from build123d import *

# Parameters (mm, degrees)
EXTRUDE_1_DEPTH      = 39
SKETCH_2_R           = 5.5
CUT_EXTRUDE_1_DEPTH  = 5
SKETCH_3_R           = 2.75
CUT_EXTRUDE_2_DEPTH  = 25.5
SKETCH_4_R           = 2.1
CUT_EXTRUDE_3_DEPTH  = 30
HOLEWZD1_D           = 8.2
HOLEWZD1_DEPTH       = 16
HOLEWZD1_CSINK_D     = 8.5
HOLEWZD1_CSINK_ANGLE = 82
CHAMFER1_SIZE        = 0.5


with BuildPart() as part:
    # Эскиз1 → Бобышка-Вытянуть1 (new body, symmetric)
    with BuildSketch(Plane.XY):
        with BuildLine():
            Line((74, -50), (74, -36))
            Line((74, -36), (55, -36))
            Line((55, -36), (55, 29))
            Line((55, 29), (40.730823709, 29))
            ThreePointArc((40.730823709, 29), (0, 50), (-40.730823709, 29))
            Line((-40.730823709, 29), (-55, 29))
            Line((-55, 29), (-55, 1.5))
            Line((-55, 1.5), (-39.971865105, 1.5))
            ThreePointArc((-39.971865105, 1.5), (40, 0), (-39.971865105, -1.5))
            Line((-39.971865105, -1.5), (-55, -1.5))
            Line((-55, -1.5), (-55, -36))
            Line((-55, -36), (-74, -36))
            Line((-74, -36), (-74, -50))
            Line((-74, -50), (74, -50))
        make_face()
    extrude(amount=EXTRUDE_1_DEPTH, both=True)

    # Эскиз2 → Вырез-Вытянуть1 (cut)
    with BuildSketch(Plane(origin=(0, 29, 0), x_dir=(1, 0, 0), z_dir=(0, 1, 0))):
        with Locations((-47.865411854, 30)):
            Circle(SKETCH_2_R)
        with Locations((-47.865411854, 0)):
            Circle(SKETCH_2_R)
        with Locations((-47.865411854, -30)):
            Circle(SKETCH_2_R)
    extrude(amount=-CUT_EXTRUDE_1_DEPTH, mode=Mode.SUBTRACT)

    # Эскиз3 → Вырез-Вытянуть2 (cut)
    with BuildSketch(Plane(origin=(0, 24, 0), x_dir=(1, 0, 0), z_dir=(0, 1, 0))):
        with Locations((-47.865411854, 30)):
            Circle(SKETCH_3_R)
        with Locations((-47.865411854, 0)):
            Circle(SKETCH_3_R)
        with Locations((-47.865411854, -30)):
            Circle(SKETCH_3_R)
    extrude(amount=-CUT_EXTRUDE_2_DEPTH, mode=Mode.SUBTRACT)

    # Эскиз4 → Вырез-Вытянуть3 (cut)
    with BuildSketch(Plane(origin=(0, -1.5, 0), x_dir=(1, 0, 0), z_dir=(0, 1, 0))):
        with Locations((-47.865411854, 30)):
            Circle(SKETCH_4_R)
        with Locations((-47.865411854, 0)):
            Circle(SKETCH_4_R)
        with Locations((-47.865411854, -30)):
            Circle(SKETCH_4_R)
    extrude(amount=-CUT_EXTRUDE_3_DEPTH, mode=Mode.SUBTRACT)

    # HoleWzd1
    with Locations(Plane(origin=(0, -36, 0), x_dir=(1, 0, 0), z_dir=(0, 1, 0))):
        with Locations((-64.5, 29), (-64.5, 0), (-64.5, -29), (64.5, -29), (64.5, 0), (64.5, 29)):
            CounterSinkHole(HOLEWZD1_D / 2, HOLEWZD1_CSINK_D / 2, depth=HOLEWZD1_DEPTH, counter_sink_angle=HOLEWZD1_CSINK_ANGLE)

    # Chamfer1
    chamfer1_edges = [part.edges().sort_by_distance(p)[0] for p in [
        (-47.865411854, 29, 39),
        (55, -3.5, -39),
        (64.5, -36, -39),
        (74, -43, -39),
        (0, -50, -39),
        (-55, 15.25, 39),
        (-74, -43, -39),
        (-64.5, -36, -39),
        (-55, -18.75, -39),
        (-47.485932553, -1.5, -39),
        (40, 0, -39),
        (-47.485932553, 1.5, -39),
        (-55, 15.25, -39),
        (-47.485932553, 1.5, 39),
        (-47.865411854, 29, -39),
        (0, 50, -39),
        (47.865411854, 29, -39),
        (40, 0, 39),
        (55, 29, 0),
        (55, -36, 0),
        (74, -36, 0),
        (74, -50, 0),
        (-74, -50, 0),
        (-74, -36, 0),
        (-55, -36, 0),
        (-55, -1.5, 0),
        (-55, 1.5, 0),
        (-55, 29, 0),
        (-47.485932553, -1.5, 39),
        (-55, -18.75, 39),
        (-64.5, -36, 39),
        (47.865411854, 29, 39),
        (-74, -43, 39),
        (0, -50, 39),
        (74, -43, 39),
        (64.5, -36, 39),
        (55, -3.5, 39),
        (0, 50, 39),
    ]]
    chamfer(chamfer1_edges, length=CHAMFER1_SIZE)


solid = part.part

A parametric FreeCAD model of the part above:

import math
import FreeCAD as App
import Part
import Sketcher

V = App.Vector


def edges_at(feature, points):
    """Names of the edges that pass closest to the given points."""
    edges = feature.Shape.Edges
    near = lambda p: min(range(len(edges)), key=lambda i: edges[i].distToShape(Part.Vertex(*p))[0])
    return sorted({f"Edge{near(p) + 1}" for p in points})

doc = App.newDocument("Part")
body = doc.addObject("PartDesign::Body", "Body")

sketch1 = body.newObject("Sketcher::SketchObject", "Sketch")
sketch1.AttachmentSupport = (doc.getObject("XY_Plane"), [""])
sketch1.MapMode = "FlatFace"
sketch1.addGeometry([
    Part.LineSegment(V(74, -50, 0), V(74, -36, 0)),
    Part.LineSegment(V(74, -36, 0), V(55, -36, 0)),
    Part.LineSegment(V(55, -36, 0), V(55, 29, 0)),
    Part.LineSegment(V(55, 29, 0), V(40.730824, 29, 0)),
    Part.ArcOfCircle(Part.Circle(V(0, 0, 0), V(0, 0, 1), 50), math.radians(35.450543), math.radians(144.549457)),
    Part.LineSegment(V(-40.730824, 29, 0), V(-55, 29, 0)),
    Part.LineSegment(V(-55, 29, 0), V(-55, 1.5, 0)),
    Part.LineSegment(V(-55, 1.5, 0), V(-39.971865, 1.5, 0)),
    Part.ArcOfCircle(Part.Circle(V(0, 0, 0), V(0, 0, 1), 40), math.radians(-177.850904), math.radians(177.850904)),
    Part.LineSegment(V(-39.971865, -1.5, 0), V(-55, -1.5, 0)),
    Part.LineSegment(V(-55, -1.5, 0), V(-55, -36, 0)),
    Part.LineSegment(V(-55, -36, 0), V(-74, -36, 0)),
    Part.LineSegment(V(-74, -36, 0), V(-74, -50, 0)),
    Part.LineSegment(V(-74, -50, 0), V(74, -50, 0)),
], False)
sketch1.addConstraint([
    Sketcher.Constraint("Coincident", 0, 2, 1, 1),
    Sketcher.Constraint("Coincident", 1, 2, 2, 1),
    Sketcher.Constraint("Coincident", 2, 2, 3, 1),
    Sketcher.Constraint("Coincident", 3, 2, 4, 1),
    Sketcher.Constraint("Coincident", 4, 2, 5, 1),
    Sketcher.Constraint("Coincident", 5, 2, 6, 1),
    Sketcher.Constraint("Coincident", 6, 2, 7, 1),
    Sketcher.Constraint("Coincident", 7, 2, 8, 2),
    Sketcher.Constraint("Coincident", 8, 1, 9, 1),
    Sketcher.Constraint("Coincident", 9, 2, 10, 1),
    Sketcher.Constraint("Coincident", 10, 2, 11, 1),
    Sketcher.Constraint("Coincident", 11, 2, 12, 1),
    Sketcher.Constraint("Coincident", 12, 2, 13, 1),
    Sketcher.Constraint("Coincident", 13, 2, 0, 1),
    Sketcher.Constraint("Vertical", 0),
    Sketcher.Constraint("Horizontal", 1),
    Sketcher.Constraint("Vertical", 2),
    Sketcher.Constraint("Horizontal", 3),
    Sketcher.Constraint("Horizontal", 5),
    Sketcher.Constraint("Vertical", 6),
    Sketcher.Constraint("Horizontal", 7),
    Sketcher.Constraint("Horizontal", 9),
    Sketcher.Constraint("Vertical", 10),
    Sketcher.Constraint("Horizontal", 11),
    Sketcher.Constraint("Vertical", 12),
    Sketcher.Constraint("Horizontal", 13),
    Sketcher.Constraint("Coincident", 4, 3, -1, 1),
    Sketcher.Constraint("Coincident", 8, 3, -1, 1),
    Sketcher.Constraint("Symmetric", 2, 2, 5, 2, -2),
    Sketcher.Constraint("Symmetric", 1, 2, 10, 2, -2),
    Sketcher.Constraint("Vertical", 7, 2, 8, 1),
    Sketcher.Constraint("Equal", 1, 11),
    Sketcher.Constraint("Radius", 4, 50.0),
    Sketcher.Constraint("Radius", 8, 40.0),
    Sketcher.Constraint("DistanceX", 1, 2, 1, 1, 19.0),
    Sketcher.Constraint("DistanceX", 13, 1, 13, 2, 148.0),
    Sketcher.Constraint("DistanceY", 0, 1, 0, 2, 14.0),
    Sketcher.Constraint("DistanceY", 2, 1, 2, 2, 65.0),
    Sketcher.Constraint("DistanceY", 6, 2, 6, 1, 27.5),
    Sketcher.Constraint("DistanceY", 10, 2, 10, 1, 34.5),
])
pad1 = body.newObject("PartDesign::Pad", "Pad")
pad1.Profile = sketch1
pad1.Length = 78
pad1.Midplane = True

sketch2 = body.newObject("Sketcher::SketchObject", "Sketch001")
sketch2.AttachmentSupport = (doc.getObject("XZ_Plane"), [""])
sketch2.MapMode = "FlatFace"
sketch2.AttachmentOffset = App.Placement(V(0, 0, -29), App.Rotation())
sketch2.addGeometry([
    Part.Circle(V(-47.865412, -30, 0), V(0, 0, 1), 5.5),
    Part.Circle(V(-47.865412, 0, 0), V(0, 0, 1), 5.5),
    Part.Circle(V(-47.865412, 30, 0), V(0, 0, 1), 5.5),
], False)
sketch2.addConstraint([
    Sketcher.Constraint("Equal", 0, 1),
    Sketcher.Constraint("Equal", 1, 2),
    Sketcher.Constraint("Symmetric", 0, 3, 2, 3, -1),
    Sketcher.Constraint("PointOnObject", 1, 3, -1),
    Sketcher.Constraint("Vertical", 0, 3, 1, 3),
    Sketcher.Constraint("Diameter", 0, 11.0),
    Sketcher.Constraint("DistanceY", 0, 3, -1, 1, 30.0),
    Sketcher.Constraint("DistanceX", 0, 3, -1, 1, 47.865412),
])
pocket1 = body.newObject("PartDesign::Pocket", "Pocket")
pocket1.Profile = sketch2
pocket1.Length = 5
pocket1.Reversed = True

sketch3 = body.newObject("Sketcher::SketchObject", "Sketch002")
sketch3.AttachmentSupport = (doc.getObject("XZ_Plane"), [""])
sketch3.MapMode = "FlatFace"
sketch3.AttachmentOffset = App.Placement(V(0, 0, -24), App.Rotation())
sketch3.addGeometry([
    Part.Circle(V(-47.865412, -30, 0), V(0, 0, 1), 2.75),
    Part.Circle(V(-47.865412, 0, 0), V(0, 0, 1), 2.75),
    Part.Circle(V(-47.865412, 30, 0), V(0, 0, 1), 2.75),
], False)
sketch3.addConstraint([
    Sketcher.Constraint("Equal", 0, 1),
    Sketcher.Constraint("Equal", 1, 2),
    Sketcher.Constraint("Symmetric", 0, 3, 2, 3, -1),
    Sketcher.Constraint("PointOnObject", 1, 3, -1),
    Sketcher.Constraint("Vertical", 0, 3, 1, 3),
    Sketcher.Constraint("Diameter", 0, 5.5),
    Sketcher.Constraint("DistanceY", 0, 3, -1, 1, 30.0),
    Sketcher.Constraint("DistanceX", 0, 3, -1, 1, 47.865412),
])
pocket2 = body.newObject("PartDesign::Pocket", "Pocket001")
pocket2.Profile = sketch3
pocket2.Length = 25.5
pocket2.Reversed = True

sketch4 = body.newObject("Sketcher::SketchObject", "Sketch003")
sketch4.AttachmentSupport = (doc.getObject("XZ_Plane"), [""])
sketch4.MapMode = "FlatFace"
sketch4.AttachmentOffset = App.Placement(V(0, 0, 1.5), App.Rotation())
sketch4.addGeometry([
    Part.Circle(V(-47.865412, -30, 0), V(0, 0, 1), 2.1),
    Part.Circle(V(-47.865412, 0, 0), V(0, 0, 1), 2.1),
    Part.Circle(V(-47.865412, 30, 0), V(0, 0, 1), 2.1),
], False)
sketch4.addConstraint([
    Sketcher.Constraint("Equal", 0, 1),
    Sketcher.Constraint("Equal", 1, 2),
    Sketcher.Constraint("Symmetric", 0, 3, 2, 3, -1),
    Sketcher.Constraint("PointOnObject", 1, 3, -1),
    Sketcher.Constraint("Vertical", 0, 3, 1, 3),
    Sketcher.Constraint("Diameter", 0, 4.2),
    Sketcher.Constraint("DistanceY", 0, 3, -1, 1, 30.0),
    Sketcher.Constraint("DistanceX", 0, 3, -1, 1, 47.865412),
])
pocket3 = body.newObject("PartDesign::Pocket", "Pocket002")
pocket3.Profile = sketch4
pocket3.Length = 30
pocket3.Reversed = True

sketch5 = body.newObject("Sketcher::SketchObject", "Sketch004")
sketch5.AttachmentSupport = (doc.getObject("XZ_Plane"), [""])
sketch5.MapMode = "FlatFace"
sketch5.AttachmentOffset = App.Placement(V(0, 0, 36), App.Rotation())
sketch5.addGeometry([
    Part.Circle(V(-64.5, -29, 0), V(0, 0, 1), 4.1),
    Part.Circle(V(-64.5, 0, 0), V(0, 0, 1), 4.1),
    Part.Circle(V(-64.5, 29, 0), V(0, 0, 1), 4.1),
    Part.Circle(V(64.5, 29, 0), V(0, 0, 1), 4.1),
    Part.Circle(V(64.5, 0, 0), V(0, 0, 1), 4.1),
    Part.Circle(V(64.5, -29, 0), V(0, 0, 1), 4.1),
], False)
sketch5.addConstraint([
    Sketcher.Constraint("Equal", 0, 1),
    Sketcher.Constraint("Equal", 1, 2),
    Sketcher.Constraint("Equal", 2, 3),
    Sketcher.Constraint("Equal", 3, 4),
    Sketcher.Constraint("Equal", 4, 5),
    Sketcher.Constraint("Symmetric", 0, 3, 3, 3, -1, 1),
    Sketcher.Constraint("Symmetric", 1, 3, 4, 3, -1, 1),
    Sketcher.Constraint("Symmetric", 2, 3, 5, 3, -1, 1),
    Sketcher.Constraint("Symmetric", 2, 3, 3, 3, -2),
    Sketcher.Constraint("PointOnObject", 1, 3, -1),
    Sketcher.Constraint("Vertical", 0, 3, 1, 3),
    Sketcher.Constraint("Diameter", 0, 8.2),
    Sketcher.Constraint("DistanceY", 0, 3, -1, 1, 29.0),
    Sketcher.Constraint("DistanceX", 2, 3, 3, 3, 129.0),
])
doc.recompute()
hole = body.newObject("PartDesign::Hole", "Hole")
hole.Profile = sketch5
hole.ThreadType = "None"
hole.Diameter = 8.2
hole.DepthType = "Dimension"
hole.Depth = 16
hole.DrillPoint = "Flat"
hole.HoleCutType = "Countersink"
hole.HoleCutDiameter = 8.5
hole.HoleCutCountersinkAngle = 82
hole.Reversed = True
doc.recompute()

chamfer = body.newObject("PartDesign::Chamfer", "Chamfer")
chamfer.Base = (hole, edges_at(hole, [
    (-47.865, 29, 39),
    (55, -3.5, -39),
    (64.5, -36, -39),
    (74, -43, -39),
    (0, -50, -39),
    (-55, 15.25, 39),
    (-74, -43, -39),
    (-64.5, -36, -39),
    (-55, -18.75, -39),
    (-47.486, -1.5, -39),
    (40, 0, -39),
    (-47.486, 1.5, -39),
    (-55, 15.25, -39),
    (-47.486, 1.5, 39),
    (-47.865, 29, -39),
    (0, 50, -39),
    (47.865, 29, -39),
    (40, 0, 39),
    (55, 29, 0),
    (55, -36, 0),
    (74, -36, 0),
    (74, -50, 0),
    (-74, -50, 0),
    (-74, -36, 0),
    (-55, -36, 0),
    (-55, -1.5, 0),
    (-55, 1.5, 0),
    (-55, 29, 0),
    (-47.486, -1.5, 39),
    (-55, -18.75, 39),
    (-64.5, -36, 39),
    (47.865, 29, 39),
    (-74, -43, 39),
    (0, -50, 39),
    (74, -43, 39),
    (64.5, -36, 39),
    (55, -3.5, 39),
    (0, 50, 39),
]))
chamfer.Size = 0.5

doc.recompute()
